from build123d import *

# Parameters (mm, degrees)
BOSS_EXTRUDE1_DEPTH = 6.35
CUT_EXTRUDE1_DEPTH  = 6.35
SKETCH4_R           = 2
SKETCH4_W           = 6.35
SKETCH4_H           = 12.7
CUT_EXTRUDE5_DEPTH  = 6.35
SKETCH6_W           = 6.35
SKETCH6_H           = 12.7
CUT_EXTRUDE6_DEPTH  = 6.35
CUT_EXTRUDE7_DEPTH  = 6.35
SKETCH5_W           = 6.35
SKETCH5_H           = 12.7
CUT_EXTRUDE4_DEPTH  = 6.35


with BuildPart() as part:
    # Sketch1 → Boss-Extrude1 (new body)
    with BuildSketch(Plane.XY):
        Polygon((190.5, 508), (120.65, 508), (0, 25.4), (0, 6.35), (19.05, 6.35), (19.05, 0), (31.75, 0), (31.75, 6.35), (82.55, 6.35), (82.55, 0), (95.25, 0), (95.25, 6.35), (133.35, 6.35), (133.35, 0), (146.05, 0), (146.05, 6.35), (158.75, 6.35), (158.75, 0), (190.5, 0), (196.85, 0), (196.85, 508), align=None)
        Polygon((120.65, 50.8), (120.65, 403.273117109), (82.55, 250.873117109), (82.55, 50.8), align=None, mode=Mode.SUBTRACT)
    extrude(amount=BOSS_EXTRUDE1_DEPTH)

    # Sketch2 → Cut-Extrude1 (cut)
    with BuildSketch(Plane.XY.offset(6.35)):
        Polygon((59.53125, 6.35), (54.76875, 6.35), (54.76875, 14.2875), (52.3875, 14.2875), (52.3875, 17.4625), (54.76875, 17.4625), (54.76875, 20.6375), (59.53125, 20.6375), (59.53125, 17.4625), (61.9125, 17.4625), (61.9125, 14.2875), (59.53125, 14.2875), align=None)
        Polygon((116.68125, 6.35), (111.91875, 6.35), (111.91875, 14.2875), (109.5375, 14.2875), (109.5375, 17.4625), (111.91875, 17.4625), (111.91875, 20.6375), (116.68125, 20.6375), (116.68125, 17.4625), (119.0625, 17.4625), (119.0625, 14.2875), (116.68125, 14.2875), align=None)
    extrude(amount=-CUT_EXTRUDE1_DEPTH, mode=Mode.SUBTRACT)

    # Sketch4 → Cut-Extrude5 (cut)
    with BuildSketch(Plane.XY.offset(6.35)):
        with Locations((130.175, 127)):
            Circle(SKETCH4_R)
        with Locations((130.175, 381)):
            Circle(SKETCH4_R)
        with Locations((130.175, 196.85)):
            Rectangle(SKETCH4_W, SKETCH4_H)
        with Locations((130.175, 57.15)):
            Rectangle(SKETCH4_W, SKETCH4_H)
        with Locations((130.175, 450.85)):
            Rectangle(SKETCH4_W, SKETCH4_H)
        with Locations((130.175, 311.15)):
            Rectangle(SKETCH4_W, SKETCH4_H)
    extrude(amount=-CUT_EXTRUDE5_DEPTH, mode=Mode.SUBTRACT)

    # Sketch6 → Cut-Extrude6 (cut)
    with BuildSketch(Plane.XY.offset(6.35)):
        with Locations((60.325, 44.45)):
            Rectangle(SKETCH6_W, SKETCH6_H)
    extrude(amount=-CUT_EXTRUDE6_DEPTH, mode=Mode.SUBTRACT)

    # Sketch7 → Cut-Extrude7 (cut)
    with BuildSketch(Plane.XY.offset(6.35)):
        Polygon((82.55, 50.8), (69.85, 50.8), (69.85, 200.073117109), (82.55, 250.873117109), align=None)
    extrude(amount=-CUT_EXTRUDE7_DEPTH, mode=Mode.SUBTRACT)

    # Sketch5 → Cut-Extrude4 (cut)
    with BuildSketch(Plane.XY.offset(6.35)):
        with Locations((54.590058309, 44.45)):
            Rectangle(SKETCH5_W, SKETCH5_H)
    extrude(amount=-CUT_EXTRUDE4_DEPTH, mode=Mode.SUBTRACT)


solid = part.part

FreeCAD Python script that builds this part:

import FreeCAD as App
import Part
import Sketcher
Q = App.Units.Quantity


def add_polygon(sketch, points):
    """Adds a closed chain of lines whose ends are joined by coincident constraints."""
    first, n = sketch.GeometryCount, len(points)
    for a, b in zip(points, points[1:] + points[:1]):
        sketch.addGeometry(Part.LineSegment(App.Vector(*a, 0), App.Vector(*b, 0)), False)
    for i in range(n):
        sketch.addConstraint(Sketcher.Constraint("Coincident", first + i, 2, first + (i + 1) % n, 1))

doc = App.newDocument("Part")
params = doc.addObject("Spreadsheet::Sheet", "Params")
for row, (alias, value) in enumerate([
    ("sketch1_width", "2 in"),
    ("sketch1_width2", "3 in"),
    ("sketch1_height", "20 in"),
    ("sketch1_width3", "0.5 in"),
    ("pad1_length", "0.25 in"),
    ("sketch2_width", "0.1875 in"),
    ("sketch2_width2", "0.09375 in"),
    ("sketch2_height", "0.3125 in"),
    ("sketch2_height2", "0.125 in"),
    ("pocket1_length", "0.25 in"),
    ("sketch3_height", "0.5 in"),
    ("sketch3_width", "0.25 in"),
    ("pocket2_length", "0.25 in"),
    ("sketch4_height", "0.5 in"),
    ("sketch4_width", "0.25 in"),
    ("pocket3_length", "0.25 in"),
    ("sketch5_width", "0.5 in"),
    ("pocket4_length", "0.25 in"),
    ("sketch6_height", "0.5 in"),
    ("sketch6_width", "0.25 in"),
    ("pocket5_length", "0.25 in"),
], start=1):
    params.set(f"A{row}", alias)
    params.set(f"B{row}", "=" + value)
    params.setAlias(f"B{row}", alias)

body = doc.addObject("PartDesign::Body", "Body")

# Sketch on XY plane
sketch1 = body.newObject("Sketcher::SketchObject", "Sketch")
sketch1.AttachmentSupport = (doc.getObject("XY_Plane"), [""])
sketch1.MapMode = "FlatFace"
add_polygon(sketch1, [(121, 508), (0, 25), (0, 6), (19, 6), (19, 0), (32, 0), (32, 6), (83, 6), (83, 0), (95, 0), (95, 6), (133, 6), (133, 0), (146, 0), (146, 6), (159, 6), (159, 0), (197, 0), (197, 508)])  # lines 0-18
add_polygon(sketch1, [(121, 403), (121, 51), (83, 51), (83, 251)])  # lines 19-22
sketch1.addConstraint(Sketcher.Constraint("Vertical", 1))
sketch1.addConstraint(Sketcher.Constraint("Horizontal", 2))
sketch1.addConstraint(Sketcher.Constraint("Vertical", 3))
sketch1.addConstraint(Sketcher.Constraint("Horizontal", 4))
sketch1.addConstraint(Sketcher.Constraint("Vertical", 5))
sketch1.addConstraint(Sketcher.Constraint("Horizontal", 6))
sketch1.addConstraint(Sketcher.Constraint("Vertical", 7))
sketch1.addConstraint(Sketcher.Constraint("Horizontal", 8))
sketch1.addConstraint(Sketcher.Constraint("Vertical", 9))
sketch1.addConstraint(Sketcher.Constraint("Horizontal", 10))
sketch1.addConstraint(Sketcher.Constraint("Vertical", 11))
sketch1.addConstraint(Sketcher.Constraint("Horizontal", 12))
sketch1.addConstraint(Sketcher.Constraint("Vertical", 13))
sketch1.addConstraint(Sketcher.Constraint("Horizontal", 14))
sketch1.addConstraint(Sketcher.Constraint("Vertical", 15))
sketch1.addConstraint(Sketcher.Constraint("Horizontal", 16))
sketch1.addConstraint(Sketcher.Constraint("Vertical", 17))
sketch1.addConstraint(Sketcher.Constraint("Horizontal", 18))
sketch1.addConstraint(Sketcher.Constraint("Vertical", 19))
sketch1.addConstraint(Sketcher.Constraint("Horizontal", 20))
sketch1.addConstraint(Sketcher.Constraint("Vertical", 21))
sketch1.addConstraint(Sketcher.Constraint("PointOnObject", 0, 2, -2))
sketch1.addConstraint(Sketcher.Constraint("PointOnObject", 3, 2, -1))
sketch1.addConstraint(Sketcher.Constraint("PointOnObject", 7, 2, -1))
sketch1.addConstraint(Sketcher.Constraint("PointOnObject", 11, 2, -1))
sketch1.addConstraint(Sketcher.Constraint("PointOnObject", 15, 2, -1))
sketch1.addConstraint(Sketcher.Constraint("Parallel", 0, 22))
sketch1.addConstraint(Sketcher.Constraint("Horizontal", 2, 2, 5, 2))
sketch1.addConstraint(Sketcher.Constraint("Horizontal", 6, 2, 9, 2))
sketch1.addConstraint(Sketcher.Constraint("Horizontal", 10, 2, 13, 2))
sketch1.addConstraint(Sketcher.Constraint("Vertical", 18, 2, 19, 2))
sketch1.addConstraint(Sketcher.Constraint("Vertical", 7, 2, 20, 2))
sketch1.addConstraint(Sketcher.Constraint("Equal", 4, 8))
sketch1.addConstraint(Sketcher.Constraint("Equal", 8, 12))
sketch1.addConstraint(Sketcher.Constraint("Equal", 12, 14))
sketch1.addConstraint(Sketcher.Constraint("Equal", 10, 16))
sketch1.addConstraint(Sketcher.Constraint("Equal", 16, 20))
sketch1.addConstraint(Sketcher.Constraint("Equal", 2, 1))
sketch1.addConstraint(Sketcher.Constraint("DistanceX", 6, 1, 6, 2, Q("2 in")))
sketch1.addConstraint(Sketcher.Constraint("DistanceX", 18, 2, 18, 1, Q("3 in")))
sketch1.addConstraint(Sketcher.Constraint("DistanceY", 17, 1, 17, 2, Q("20 in")))
sketch1.addConstraint(Sketcher.Constraint("DistanceX", 4, 1, 4, 2, Q("0.5 in")))
sketch1.addConstraint(Sketcher.Constraint("DistanceY", -1, 1, 0, 2, Q("1 in")))
sketch1.addConstraint(Sketcher.Constraint("DistanceY", -1, 1, 19, 2, Q("2 in")))
sketch1.addConstraint(Sketcher.Constraint("DistanceY", 21, 2, 22, 2, Q("6 in")))
sketch1.addConstraint(Sketcher.Constraint("DistanceY", 19, 2, 19, 1, Q("352.473117 mm")))
sketch1.setExpression("Constraints[61]", "Params.sketch1_width")
sketch1.setExpression("Constraints[62]", "Params.sketch1_width2")
sketch1.setExpression("Constraints[63]", "Params.sketch1_height")
sketch1.setExpression("Constraints[64]", "Params.sketch1_width3")
pad1 = body.newObject("PartDesign::Pad", "Pad")
pad1.Profile = sketch1
pad1.setExpression("Length", "Params.pad1_length")

# Sketch on XY plane
sketch2 = body.newObject("Sketcher::SketchObject", "Sketch001")
sketch2.AttachmentSupport = (doc.getObject("XY_Plane"), [""])
sketch2.MapMode = "FlatFace"
sketch2.AttachmentOffset = App.Placement(App.Vector(0, 0, 0.25 * 25.4), App.Rotation())
add_polygon(sketch2, [(54.8, 6.3), (59.5, 6.3), (59.5, 14.3), (61.9, 14.3), (61.9, 17.5), (59.5, 17.5), (59.5, 20.6), (54.8, 20.6), (54.8, 17.5), (52.4, 17.5), (52.4, 14.3), (54.8, 14.3)])  # lines 0-11
add_polygon(sketch2, [(111.9, 6.3), (116.7, 6.3), (116.7, 14.3), (119.1, 14.3), (119.1, 17.5), (116.7, 17.5), (116.7, 20.6), (111.9, 20.6), (111.9, 17.5), (109.5, 17.5), (109.5, 14.3), (111.9, 14.3)])  # lines 12-23
sketch2.addConstraint(Sketcher.Constraint("Horizontal", 0))
sketch2.addConstraint(Sketcher.Constraint("Vertical", 1))
sketch2.addConstraint(Sketcher.Constraint("Horizontal", 2))
sketch2.addConstraint(Sketcher.Constraint("Vertical", 3))
sketch2.addConstraint(Sketcher.Constraint("Horizontal", 4))
sketch2.addConstraint(Sketcher.Constraint("Vertical", 5))
sketch2.addConstraint(Sketcher.Constraint("Horizontal", 6))
sketch2.addConstraint(Sketcher.Constraint("Vertical", 7))
sketch2.addConstraint(Sketcher.Constraint("Horizontal", 8))
sketch2.addConstraint(Sketcher.Constraint("Vertical", 9))
sketch2.addConstraint(Sketcher.Constraint("Horizontal", 10))
sketch2.addConstraint(Sketcher.Constraint("Vertical", 11))
sketch2.addConstraint(Sketcher.Constraint("Horizontal", 12))
sketch2.addConstraint(Sketcher.Constraint("Vertical", 13))
sketch2.addConstraint(Sketcher.Constraint("Horizontal", 14))
sketch2.addConstraint(Sketcher.Constraint("Vertical", 15))
sketch2.addConstraint(Sketcher.Constraint("Horizontal", 16))
sketch2.addConstraint(Sketcher.Constraint("Vertical", 17))
sketch2.addConstraint(Sketcher.Constraint("Horizontal", 18))
sketch2.addConstraint(Sketcher.Constraint("Vertical", 19))
sketch2.addConstraint(Sketcher.Constraint("Horizontal", 20))
sketch2.addConstraint(Sketcher.Constraint("Vertical", 21))
sketch2.addConstraint(Sketcher.Constraint("Horizontal", 22))
sketch2.addConstraint(Sketcher.Constraint("Vertical", 23))
sketch2.addConstraint(Sketcher.Constraint("Horizontal", 4, 2, 7, 2))
sketch2.addConstraint(Sketcher.Constraint("Horizontal", 2, 2, 9, 2))
sketch2.addConstraint(Sketcher.Constraint("Horizontal", 11, 2, 12, 2))
sketch2.addConstraint(Sketcher.Constraint("Horizontal", 10, 2, 13, 2))
sketch2.addConstraint(Sketcher.Constraint("Horizontal", 8, 2, 15, 2))
sketch2.addConstraint(Sketcher.Constraint("Horizontal", 6, 2, 17, 2))
sketch2.addConstraint(Sketcher.Constraint("Horizontal", 16, 2, 19, 2))
sketch2.addConstraint(Sketcher.Constraint("Horizontal", 14, 2, 21, 2))
sketch2.addConstraint(Sketcher.Constraint("Vertical", 1, 2, 4, 2))
sketch2.addConstraint(Sketcher.Constraint("Vertical", 7, 2, 10, 2))
sketch2.addConstraint(Sketcher.Constraint("Vertical", 13, 2, 16, 2))
sketch2.addConstraint(Sketcher.Constraint("Vertical", 19, 2, 22, 2))
sketch2.addConstraint(Sketcher.Constraint("Equal", 4, 8))
sketch2.addConstraint(Sketcher.Constraint("Equal", 6, 12))
sketch2.addConstraint(Sketcher.Constraint("Equal", 10, 14))
sketch2.addConstraint(Sketcher.Constraint("Equal", 16, 20))
sketch2.addConstraint(Sketcher.Constraint("Equal", 3, 5))
sketch2.addConstraint(Sketcher.Constraint("DistanceX", 0, 1, 0, 2, Q("0.1875 in")))
sketch2.addConstraint(Sketcher.Constraint("DistanceX", 2, 1, 2, 2, Q("0.09375 in")))
sketch2.addConstraint(Sketcher.Constraint("DistanceY", 1, 1, 1, 2, Q("0.3125 in")))
sketch2.addConstraint(Sketcher.Constraint("DistanceY", 3, 1, 3, 2, Q("0.125 in")))
sketch2.addConstraint(Sketcher.Constraint("DistanceY", -1, 1, 0, 2, Q("0.25 in")))
sketch2.addConstraint(Sketcher.Constraint("DistanceX", 0, 2, 12, 2, Q("2.25 in")))
sketch2.addConstraint(Sketcher.Constraint("DistanceX", -1, 1, 0, 2, Q("2.34375 in")))
sketch2.setExpression("Constraints[65]", "Params.sketch2_width")
sketch2.setExpression("Constraints[66]", "Params.sketch2_width2")
sketch2.setExpression("Constraints[67]", "Params.sketch2_height")
sketch2.setExpression("Constraints[68]", "Params.sketch2_height2")
pocket1 = body.newObject("PartDesign::Pocket", "Pocket")
pocket1.Profile = sketch2
pocket1.setExpression("Length", "Params.pocket1_length")

# Sketch on XY plane
sketch3 = body.newObject("Sketcher::SketchObject", "Sketch002")
sketch3.AttachmentSupport = (doc.getObject("XY_Plane"), [""])
sketch3.MapMode = "FlatFace"
sketch3.AttachmentOffset = App.Placement(App.Vector(0, 0, 0.25 * 25.4), App.Rotation())
sketch3.addGeometry(Part.Circle(App.Vector(130.2, 127, 0), App.Vector(0, 0, 1), 2), False)  # 0
sketch3.addGeometry(Part.Circle(App.Vector(130.2, 381, 0), App.Vector(0, 0, 1), 2), False)  # 1
add_polygon(sketch3, [(127, 203.2), (127, 190.5), (133.3, 190.5), (133.3, 203.2)])  # lines 2-5
add_polygon(sketch3, [(127, 63.5), (127, 50.8), (133.3, 50.8), (133.3, 63.5)])  # lines 6-9
add_polygon(sketch3, [(127, 457.2), (127, 444.5), (133.3, 444.5), (133.3, 457.2)])  # lines 10-13
add_polygon(sketch3, [(127, 317.5), (127, 304.8), (133.3, 304.8), (133.3, 317.5)])  # lines 14-17
sketch3.addConstraint(Sketcher.Constraint("Vertical", 2))
sketch3.addConstraint(Sketcher.Constraint("Horizontal", 3))
sketch3.addConstraint(Sketcher.Constraint("Vertical", 4))
sketch3.addConstraint(Sketcher.Constraint("Horizontal", 5))
sketch3.addConstraint(Sketcher.Constraint("Vertical", 6))
sketch3.addConstraint(Sketcher.Constraint("Horizontal", 7))
sketch3.addConstraint(Sketcher.Constraint("Vertical", 8))
sketch3.addConstraint(Sketcher.Constraint("Horizontal", 9))
sketch3.addConstraint(Sketcher.Constraint("Vertical", 10))
sketch3.addConstraint(Sketcher.Constraint("Horizontal", 11))
sketch3.addConstraint(Sketcher.Constraint("Vertical", 12))
sketch3.addConstraint(Sketcher.Constraint("Horizontal", 13))
sketch3.addConstraint(Sketcher.Constraint("Vertical", 14))
sketch3.addConstraint(Sketcher.Constraint("Horizontal", 15))
sketch3.addConstraint(Sketcher.Constraint("Vertical", 16))
sketch3.addConstraint(Sketcher.Constraint("Horizontal", 17))
sketch3.addConstraint(Sketcher.Constraint("Equal", 0, 1))
sketch3.addConstraint(Sketcher.Constraint("Vertical", 0, 3, 1, 3))
sketch3.addConstraint(Sketcher.Constraint("Vertical", 5, 2, 6, 2))
sketch3.addConstraint(Sketcher.Constraint("Vertical", 4, 2, 7, 2))
sketch3.addConstraint(Sketcher.Constraint("Vertical", 9, 2, 10, 2))
sketch3.addConstraint(Sketcher.Constraint("Vertical", 8, 2, 11, 2))
sketch3.addConstraint(Sketcher.Constraint("Vertical", 13, 2, 14, 2))
sketch3.addConstraint(Sketcher.Constraint("Vertical", 12, 2, 15, 2))
sketch3.addConstraint(Sketcher.Constraint("Equal", 4, 6))
sketch3.addConstraint(Sketcher.Constraint("Equal", 8, 10))
sketch3.addConstraint(Sketcher.Constraint("Equal", 12, 14))
sketch3.addConstraint(Sketcher.Constraint("DistanceY", 2, 2, 2, 1, Q("0.5 in")))
sketch3.addConstraint(Sketcher.Constraint("DistanceY", -1, 1, 0, 3, Q("5 in")))
sketch3.addConstraint(Sketcher.Constraint("DistanceY", -1, 1, 1, 3, Q("15 in")))
sketch3.addConstraint(Sketcher.Constraint("DistanceX", -1, 1, 2, 2, Q("5 in")))
sketch3.addConstraint(Sketcher.Constraint("DistanceY", -1, 1, 4, 2, Q("8 in")))
sketch3.addConstraint(Sketcher.Constraint("DistanceY", -1, 1, 6, 2, Q("2 in")))
sketch3.addConstraint(Sketcher.Constraint("DistanceY", -1, 1, 12, 2, Q("18 in")))
sketch3.addConstraint(Sketcher.Constraint("DistanceY", -1, 1, 14, 2, Q("12 in")))
sketch3.addConstraint(Sketcher.Constraint("DistanceX", 3, 1, 3, 2, Q("0.25 in")))
sketch3.addConstraint(Sketcher.Constraint("Diameter", 0, Q("4 mm")))
sketch3.addConstraint(Sketcher.Constraint("DistanceX", -1, 1, 0, 3, Q("5.125 in")))
sketch3.setExpression("Constraints[43]", "Params.sketch3_height")
sketch3.setExpression("Constraints[51]", "Params.sketch3_width")
pocket2 = body.newObject("PartDesign::Pocket", "Pocket001")
pocket2.Profile = sketch3
pocket2.setExpression("Length", "Params.pocket2_length")

# Sketch on XY plane
sketch4 = body.newObject("Sketcher::SketchObject", "Sketch003")
sketch4.AttachmentSupport = (doc.getObject("XY_Plane"), [""])
sketch4.MapMode = "FlatFace"
sketch4.AttachmentOffset = App.Placement(App.Vector(0, 0, 0.25 * 25.4), App.Rotation())
add_polygon(sketch4, [(57, 51), (57, 38), (64, 38), (64, 51)])  # lines 0-3
sketch4.addConstraint(Sketcher.Constraint("Vertical", 0))
sketch4.addConstraint(Sketcher.Constraint("Horizontal", 1))
sketch4.addConstraint(Sketcher.Constraint("Vertical", 2))
sketch4.addConstraint(Sketcher.Constraint("Horizontal", 3))
sketch4.addConstraint(Sketcher.Constraint("DistanceY", 0, 2, 0, 1, Q("0.5 in")))
sketch4.addConstraint(Sketcher.Constraint("DistanceY", -1, 1, 2, 2, Q("2 in")))
sketch4.addConstraint(Sketcher.Constraint("DistanceX", 1, 1, 1, 2, Q("0.25 in")))
sketch4.addConstraint(Sketcher.Constraint("DistanceX", -1, 1, 1, 2, Q("2.5 in")))
sketch4.setExpression("Constraints[8]", "Params.sketch4_height")
sketch4.setExpression("Constraints[10]", "Params.sketch4_width")
pocket3 = body.newObject("PartDesign::Pocket", "Pocket002")
pocket3.Profile = sketch4
pocket3.setExpression("Length", "Params.pocket3_length")

# Sketch on XY plane
sketch5 = body.newObject("Sketcher::SketchObject", "Sketch004")
sketch5.AttachmentSupport = (doc.getObject("XY_Plane"), [""])
sketch5.MapMode = "FlatFace"
sketch5.AttachmentOffset = App.Placement(App.Vector(0, 0, 0.25 * 25.4), App.Rotation())
add_polygon(sketch5, [(70, 51), (83, 51), (83, 251), (70, 200)])  # lines 0-3
sketch5.addConstraint(Sketcher.Constraint("Horizontal", 0))
sketch5.addConstraint(Sketcher.Constraint("Vertical", 1))
sketch5.addConstraint(Sketcher.Constraint("Vertical", 3))
sketch5.addConstraint(Sketcher.Constraint("DistanceX", 0, 1, 0, 2, Q("0.5 in")))
sketch5.addConstraint(Sketcher.Constraint("DistanceY", -1, 1, 0, 2, Q("2 in")))
sketch5.addConstraint(Sketcher.Constraint("DistanceY", 2, 2, 1, 2, Q("2 in")))
sketch5.addConstraint(Sketcher.Constraint("DistanceX", -1, 1, 0, 2, Q("3.25 in")))
sketch5.addConstraint(Sketcher.Constraint("DistanceY", 1, 1, 1, 2, Q("200.073117 mm")))
sketch5.setExpression("Constraints[7]", "Params.sketch5_width")
pocket4 = body.newObject("PartDesign::Pocket", "Pocket003")
pocket4.Profile = sketch5
pocket4.setExpression("Length", "Params.pocket4_length")

# Sketch on XY plane
sketch6 = body.newObject("Sketcher::SketchObject", "Sketch005")
sketch6.AttachmentSupport = (doc.getObject("XY_Plane"), [""])
sketch6.MapMode = "FlatFace"
sketch6.AttachmentOffset = App.Placement(App.Vector(0, 0, 0.25 * 25.4), App.Rotation())
add_polygon(sketch6, [(51, 51), (51, 38), (58, 38), (58, 51)])  # lines 0-3
sketch6.addConstraint(Sketcher.Constraint("Vertical", 0))
sketch6.addConstraint(Sketcher.Constraint("Horizontal", 1))
sketch6.addConstraint(Sketcher.Constraint("Vertical", 2))
sketch6.addConstraint(Sketcher.Constraint("Horizontal", 3))
sketch6.addConstraint(Sketcher.Constraint("DistanceY", 0, 2, 0, 1, Q("0.5 in")))
sketch6.addConstraint(Sketcher.Constraint("DistanceY", -1, 1, 2, 2, Q("2 in")))
sketch6.addConstraint(Sketcher.Constraint("DistanceX", 1, 1, 1, 2, Q("0.25 in")))
sketch6.addConstraint(Sketcher.Constraint("DistanceX", -1, 1, 0, 2, Q("51.415058 mm")))
sketch6.setExpression("Constraints[8]", "Params.sketch6_height")
sketch6.setExpression("Constraints[10]", "Params.sketch6_width")
pocket5 = body.newObject("PartDesign::Pocket", "Pocket004")
pocket5.Profile = sketch6
pocket5.setExpression("Length", "Params.pocket5_length")

doc.recompute()
